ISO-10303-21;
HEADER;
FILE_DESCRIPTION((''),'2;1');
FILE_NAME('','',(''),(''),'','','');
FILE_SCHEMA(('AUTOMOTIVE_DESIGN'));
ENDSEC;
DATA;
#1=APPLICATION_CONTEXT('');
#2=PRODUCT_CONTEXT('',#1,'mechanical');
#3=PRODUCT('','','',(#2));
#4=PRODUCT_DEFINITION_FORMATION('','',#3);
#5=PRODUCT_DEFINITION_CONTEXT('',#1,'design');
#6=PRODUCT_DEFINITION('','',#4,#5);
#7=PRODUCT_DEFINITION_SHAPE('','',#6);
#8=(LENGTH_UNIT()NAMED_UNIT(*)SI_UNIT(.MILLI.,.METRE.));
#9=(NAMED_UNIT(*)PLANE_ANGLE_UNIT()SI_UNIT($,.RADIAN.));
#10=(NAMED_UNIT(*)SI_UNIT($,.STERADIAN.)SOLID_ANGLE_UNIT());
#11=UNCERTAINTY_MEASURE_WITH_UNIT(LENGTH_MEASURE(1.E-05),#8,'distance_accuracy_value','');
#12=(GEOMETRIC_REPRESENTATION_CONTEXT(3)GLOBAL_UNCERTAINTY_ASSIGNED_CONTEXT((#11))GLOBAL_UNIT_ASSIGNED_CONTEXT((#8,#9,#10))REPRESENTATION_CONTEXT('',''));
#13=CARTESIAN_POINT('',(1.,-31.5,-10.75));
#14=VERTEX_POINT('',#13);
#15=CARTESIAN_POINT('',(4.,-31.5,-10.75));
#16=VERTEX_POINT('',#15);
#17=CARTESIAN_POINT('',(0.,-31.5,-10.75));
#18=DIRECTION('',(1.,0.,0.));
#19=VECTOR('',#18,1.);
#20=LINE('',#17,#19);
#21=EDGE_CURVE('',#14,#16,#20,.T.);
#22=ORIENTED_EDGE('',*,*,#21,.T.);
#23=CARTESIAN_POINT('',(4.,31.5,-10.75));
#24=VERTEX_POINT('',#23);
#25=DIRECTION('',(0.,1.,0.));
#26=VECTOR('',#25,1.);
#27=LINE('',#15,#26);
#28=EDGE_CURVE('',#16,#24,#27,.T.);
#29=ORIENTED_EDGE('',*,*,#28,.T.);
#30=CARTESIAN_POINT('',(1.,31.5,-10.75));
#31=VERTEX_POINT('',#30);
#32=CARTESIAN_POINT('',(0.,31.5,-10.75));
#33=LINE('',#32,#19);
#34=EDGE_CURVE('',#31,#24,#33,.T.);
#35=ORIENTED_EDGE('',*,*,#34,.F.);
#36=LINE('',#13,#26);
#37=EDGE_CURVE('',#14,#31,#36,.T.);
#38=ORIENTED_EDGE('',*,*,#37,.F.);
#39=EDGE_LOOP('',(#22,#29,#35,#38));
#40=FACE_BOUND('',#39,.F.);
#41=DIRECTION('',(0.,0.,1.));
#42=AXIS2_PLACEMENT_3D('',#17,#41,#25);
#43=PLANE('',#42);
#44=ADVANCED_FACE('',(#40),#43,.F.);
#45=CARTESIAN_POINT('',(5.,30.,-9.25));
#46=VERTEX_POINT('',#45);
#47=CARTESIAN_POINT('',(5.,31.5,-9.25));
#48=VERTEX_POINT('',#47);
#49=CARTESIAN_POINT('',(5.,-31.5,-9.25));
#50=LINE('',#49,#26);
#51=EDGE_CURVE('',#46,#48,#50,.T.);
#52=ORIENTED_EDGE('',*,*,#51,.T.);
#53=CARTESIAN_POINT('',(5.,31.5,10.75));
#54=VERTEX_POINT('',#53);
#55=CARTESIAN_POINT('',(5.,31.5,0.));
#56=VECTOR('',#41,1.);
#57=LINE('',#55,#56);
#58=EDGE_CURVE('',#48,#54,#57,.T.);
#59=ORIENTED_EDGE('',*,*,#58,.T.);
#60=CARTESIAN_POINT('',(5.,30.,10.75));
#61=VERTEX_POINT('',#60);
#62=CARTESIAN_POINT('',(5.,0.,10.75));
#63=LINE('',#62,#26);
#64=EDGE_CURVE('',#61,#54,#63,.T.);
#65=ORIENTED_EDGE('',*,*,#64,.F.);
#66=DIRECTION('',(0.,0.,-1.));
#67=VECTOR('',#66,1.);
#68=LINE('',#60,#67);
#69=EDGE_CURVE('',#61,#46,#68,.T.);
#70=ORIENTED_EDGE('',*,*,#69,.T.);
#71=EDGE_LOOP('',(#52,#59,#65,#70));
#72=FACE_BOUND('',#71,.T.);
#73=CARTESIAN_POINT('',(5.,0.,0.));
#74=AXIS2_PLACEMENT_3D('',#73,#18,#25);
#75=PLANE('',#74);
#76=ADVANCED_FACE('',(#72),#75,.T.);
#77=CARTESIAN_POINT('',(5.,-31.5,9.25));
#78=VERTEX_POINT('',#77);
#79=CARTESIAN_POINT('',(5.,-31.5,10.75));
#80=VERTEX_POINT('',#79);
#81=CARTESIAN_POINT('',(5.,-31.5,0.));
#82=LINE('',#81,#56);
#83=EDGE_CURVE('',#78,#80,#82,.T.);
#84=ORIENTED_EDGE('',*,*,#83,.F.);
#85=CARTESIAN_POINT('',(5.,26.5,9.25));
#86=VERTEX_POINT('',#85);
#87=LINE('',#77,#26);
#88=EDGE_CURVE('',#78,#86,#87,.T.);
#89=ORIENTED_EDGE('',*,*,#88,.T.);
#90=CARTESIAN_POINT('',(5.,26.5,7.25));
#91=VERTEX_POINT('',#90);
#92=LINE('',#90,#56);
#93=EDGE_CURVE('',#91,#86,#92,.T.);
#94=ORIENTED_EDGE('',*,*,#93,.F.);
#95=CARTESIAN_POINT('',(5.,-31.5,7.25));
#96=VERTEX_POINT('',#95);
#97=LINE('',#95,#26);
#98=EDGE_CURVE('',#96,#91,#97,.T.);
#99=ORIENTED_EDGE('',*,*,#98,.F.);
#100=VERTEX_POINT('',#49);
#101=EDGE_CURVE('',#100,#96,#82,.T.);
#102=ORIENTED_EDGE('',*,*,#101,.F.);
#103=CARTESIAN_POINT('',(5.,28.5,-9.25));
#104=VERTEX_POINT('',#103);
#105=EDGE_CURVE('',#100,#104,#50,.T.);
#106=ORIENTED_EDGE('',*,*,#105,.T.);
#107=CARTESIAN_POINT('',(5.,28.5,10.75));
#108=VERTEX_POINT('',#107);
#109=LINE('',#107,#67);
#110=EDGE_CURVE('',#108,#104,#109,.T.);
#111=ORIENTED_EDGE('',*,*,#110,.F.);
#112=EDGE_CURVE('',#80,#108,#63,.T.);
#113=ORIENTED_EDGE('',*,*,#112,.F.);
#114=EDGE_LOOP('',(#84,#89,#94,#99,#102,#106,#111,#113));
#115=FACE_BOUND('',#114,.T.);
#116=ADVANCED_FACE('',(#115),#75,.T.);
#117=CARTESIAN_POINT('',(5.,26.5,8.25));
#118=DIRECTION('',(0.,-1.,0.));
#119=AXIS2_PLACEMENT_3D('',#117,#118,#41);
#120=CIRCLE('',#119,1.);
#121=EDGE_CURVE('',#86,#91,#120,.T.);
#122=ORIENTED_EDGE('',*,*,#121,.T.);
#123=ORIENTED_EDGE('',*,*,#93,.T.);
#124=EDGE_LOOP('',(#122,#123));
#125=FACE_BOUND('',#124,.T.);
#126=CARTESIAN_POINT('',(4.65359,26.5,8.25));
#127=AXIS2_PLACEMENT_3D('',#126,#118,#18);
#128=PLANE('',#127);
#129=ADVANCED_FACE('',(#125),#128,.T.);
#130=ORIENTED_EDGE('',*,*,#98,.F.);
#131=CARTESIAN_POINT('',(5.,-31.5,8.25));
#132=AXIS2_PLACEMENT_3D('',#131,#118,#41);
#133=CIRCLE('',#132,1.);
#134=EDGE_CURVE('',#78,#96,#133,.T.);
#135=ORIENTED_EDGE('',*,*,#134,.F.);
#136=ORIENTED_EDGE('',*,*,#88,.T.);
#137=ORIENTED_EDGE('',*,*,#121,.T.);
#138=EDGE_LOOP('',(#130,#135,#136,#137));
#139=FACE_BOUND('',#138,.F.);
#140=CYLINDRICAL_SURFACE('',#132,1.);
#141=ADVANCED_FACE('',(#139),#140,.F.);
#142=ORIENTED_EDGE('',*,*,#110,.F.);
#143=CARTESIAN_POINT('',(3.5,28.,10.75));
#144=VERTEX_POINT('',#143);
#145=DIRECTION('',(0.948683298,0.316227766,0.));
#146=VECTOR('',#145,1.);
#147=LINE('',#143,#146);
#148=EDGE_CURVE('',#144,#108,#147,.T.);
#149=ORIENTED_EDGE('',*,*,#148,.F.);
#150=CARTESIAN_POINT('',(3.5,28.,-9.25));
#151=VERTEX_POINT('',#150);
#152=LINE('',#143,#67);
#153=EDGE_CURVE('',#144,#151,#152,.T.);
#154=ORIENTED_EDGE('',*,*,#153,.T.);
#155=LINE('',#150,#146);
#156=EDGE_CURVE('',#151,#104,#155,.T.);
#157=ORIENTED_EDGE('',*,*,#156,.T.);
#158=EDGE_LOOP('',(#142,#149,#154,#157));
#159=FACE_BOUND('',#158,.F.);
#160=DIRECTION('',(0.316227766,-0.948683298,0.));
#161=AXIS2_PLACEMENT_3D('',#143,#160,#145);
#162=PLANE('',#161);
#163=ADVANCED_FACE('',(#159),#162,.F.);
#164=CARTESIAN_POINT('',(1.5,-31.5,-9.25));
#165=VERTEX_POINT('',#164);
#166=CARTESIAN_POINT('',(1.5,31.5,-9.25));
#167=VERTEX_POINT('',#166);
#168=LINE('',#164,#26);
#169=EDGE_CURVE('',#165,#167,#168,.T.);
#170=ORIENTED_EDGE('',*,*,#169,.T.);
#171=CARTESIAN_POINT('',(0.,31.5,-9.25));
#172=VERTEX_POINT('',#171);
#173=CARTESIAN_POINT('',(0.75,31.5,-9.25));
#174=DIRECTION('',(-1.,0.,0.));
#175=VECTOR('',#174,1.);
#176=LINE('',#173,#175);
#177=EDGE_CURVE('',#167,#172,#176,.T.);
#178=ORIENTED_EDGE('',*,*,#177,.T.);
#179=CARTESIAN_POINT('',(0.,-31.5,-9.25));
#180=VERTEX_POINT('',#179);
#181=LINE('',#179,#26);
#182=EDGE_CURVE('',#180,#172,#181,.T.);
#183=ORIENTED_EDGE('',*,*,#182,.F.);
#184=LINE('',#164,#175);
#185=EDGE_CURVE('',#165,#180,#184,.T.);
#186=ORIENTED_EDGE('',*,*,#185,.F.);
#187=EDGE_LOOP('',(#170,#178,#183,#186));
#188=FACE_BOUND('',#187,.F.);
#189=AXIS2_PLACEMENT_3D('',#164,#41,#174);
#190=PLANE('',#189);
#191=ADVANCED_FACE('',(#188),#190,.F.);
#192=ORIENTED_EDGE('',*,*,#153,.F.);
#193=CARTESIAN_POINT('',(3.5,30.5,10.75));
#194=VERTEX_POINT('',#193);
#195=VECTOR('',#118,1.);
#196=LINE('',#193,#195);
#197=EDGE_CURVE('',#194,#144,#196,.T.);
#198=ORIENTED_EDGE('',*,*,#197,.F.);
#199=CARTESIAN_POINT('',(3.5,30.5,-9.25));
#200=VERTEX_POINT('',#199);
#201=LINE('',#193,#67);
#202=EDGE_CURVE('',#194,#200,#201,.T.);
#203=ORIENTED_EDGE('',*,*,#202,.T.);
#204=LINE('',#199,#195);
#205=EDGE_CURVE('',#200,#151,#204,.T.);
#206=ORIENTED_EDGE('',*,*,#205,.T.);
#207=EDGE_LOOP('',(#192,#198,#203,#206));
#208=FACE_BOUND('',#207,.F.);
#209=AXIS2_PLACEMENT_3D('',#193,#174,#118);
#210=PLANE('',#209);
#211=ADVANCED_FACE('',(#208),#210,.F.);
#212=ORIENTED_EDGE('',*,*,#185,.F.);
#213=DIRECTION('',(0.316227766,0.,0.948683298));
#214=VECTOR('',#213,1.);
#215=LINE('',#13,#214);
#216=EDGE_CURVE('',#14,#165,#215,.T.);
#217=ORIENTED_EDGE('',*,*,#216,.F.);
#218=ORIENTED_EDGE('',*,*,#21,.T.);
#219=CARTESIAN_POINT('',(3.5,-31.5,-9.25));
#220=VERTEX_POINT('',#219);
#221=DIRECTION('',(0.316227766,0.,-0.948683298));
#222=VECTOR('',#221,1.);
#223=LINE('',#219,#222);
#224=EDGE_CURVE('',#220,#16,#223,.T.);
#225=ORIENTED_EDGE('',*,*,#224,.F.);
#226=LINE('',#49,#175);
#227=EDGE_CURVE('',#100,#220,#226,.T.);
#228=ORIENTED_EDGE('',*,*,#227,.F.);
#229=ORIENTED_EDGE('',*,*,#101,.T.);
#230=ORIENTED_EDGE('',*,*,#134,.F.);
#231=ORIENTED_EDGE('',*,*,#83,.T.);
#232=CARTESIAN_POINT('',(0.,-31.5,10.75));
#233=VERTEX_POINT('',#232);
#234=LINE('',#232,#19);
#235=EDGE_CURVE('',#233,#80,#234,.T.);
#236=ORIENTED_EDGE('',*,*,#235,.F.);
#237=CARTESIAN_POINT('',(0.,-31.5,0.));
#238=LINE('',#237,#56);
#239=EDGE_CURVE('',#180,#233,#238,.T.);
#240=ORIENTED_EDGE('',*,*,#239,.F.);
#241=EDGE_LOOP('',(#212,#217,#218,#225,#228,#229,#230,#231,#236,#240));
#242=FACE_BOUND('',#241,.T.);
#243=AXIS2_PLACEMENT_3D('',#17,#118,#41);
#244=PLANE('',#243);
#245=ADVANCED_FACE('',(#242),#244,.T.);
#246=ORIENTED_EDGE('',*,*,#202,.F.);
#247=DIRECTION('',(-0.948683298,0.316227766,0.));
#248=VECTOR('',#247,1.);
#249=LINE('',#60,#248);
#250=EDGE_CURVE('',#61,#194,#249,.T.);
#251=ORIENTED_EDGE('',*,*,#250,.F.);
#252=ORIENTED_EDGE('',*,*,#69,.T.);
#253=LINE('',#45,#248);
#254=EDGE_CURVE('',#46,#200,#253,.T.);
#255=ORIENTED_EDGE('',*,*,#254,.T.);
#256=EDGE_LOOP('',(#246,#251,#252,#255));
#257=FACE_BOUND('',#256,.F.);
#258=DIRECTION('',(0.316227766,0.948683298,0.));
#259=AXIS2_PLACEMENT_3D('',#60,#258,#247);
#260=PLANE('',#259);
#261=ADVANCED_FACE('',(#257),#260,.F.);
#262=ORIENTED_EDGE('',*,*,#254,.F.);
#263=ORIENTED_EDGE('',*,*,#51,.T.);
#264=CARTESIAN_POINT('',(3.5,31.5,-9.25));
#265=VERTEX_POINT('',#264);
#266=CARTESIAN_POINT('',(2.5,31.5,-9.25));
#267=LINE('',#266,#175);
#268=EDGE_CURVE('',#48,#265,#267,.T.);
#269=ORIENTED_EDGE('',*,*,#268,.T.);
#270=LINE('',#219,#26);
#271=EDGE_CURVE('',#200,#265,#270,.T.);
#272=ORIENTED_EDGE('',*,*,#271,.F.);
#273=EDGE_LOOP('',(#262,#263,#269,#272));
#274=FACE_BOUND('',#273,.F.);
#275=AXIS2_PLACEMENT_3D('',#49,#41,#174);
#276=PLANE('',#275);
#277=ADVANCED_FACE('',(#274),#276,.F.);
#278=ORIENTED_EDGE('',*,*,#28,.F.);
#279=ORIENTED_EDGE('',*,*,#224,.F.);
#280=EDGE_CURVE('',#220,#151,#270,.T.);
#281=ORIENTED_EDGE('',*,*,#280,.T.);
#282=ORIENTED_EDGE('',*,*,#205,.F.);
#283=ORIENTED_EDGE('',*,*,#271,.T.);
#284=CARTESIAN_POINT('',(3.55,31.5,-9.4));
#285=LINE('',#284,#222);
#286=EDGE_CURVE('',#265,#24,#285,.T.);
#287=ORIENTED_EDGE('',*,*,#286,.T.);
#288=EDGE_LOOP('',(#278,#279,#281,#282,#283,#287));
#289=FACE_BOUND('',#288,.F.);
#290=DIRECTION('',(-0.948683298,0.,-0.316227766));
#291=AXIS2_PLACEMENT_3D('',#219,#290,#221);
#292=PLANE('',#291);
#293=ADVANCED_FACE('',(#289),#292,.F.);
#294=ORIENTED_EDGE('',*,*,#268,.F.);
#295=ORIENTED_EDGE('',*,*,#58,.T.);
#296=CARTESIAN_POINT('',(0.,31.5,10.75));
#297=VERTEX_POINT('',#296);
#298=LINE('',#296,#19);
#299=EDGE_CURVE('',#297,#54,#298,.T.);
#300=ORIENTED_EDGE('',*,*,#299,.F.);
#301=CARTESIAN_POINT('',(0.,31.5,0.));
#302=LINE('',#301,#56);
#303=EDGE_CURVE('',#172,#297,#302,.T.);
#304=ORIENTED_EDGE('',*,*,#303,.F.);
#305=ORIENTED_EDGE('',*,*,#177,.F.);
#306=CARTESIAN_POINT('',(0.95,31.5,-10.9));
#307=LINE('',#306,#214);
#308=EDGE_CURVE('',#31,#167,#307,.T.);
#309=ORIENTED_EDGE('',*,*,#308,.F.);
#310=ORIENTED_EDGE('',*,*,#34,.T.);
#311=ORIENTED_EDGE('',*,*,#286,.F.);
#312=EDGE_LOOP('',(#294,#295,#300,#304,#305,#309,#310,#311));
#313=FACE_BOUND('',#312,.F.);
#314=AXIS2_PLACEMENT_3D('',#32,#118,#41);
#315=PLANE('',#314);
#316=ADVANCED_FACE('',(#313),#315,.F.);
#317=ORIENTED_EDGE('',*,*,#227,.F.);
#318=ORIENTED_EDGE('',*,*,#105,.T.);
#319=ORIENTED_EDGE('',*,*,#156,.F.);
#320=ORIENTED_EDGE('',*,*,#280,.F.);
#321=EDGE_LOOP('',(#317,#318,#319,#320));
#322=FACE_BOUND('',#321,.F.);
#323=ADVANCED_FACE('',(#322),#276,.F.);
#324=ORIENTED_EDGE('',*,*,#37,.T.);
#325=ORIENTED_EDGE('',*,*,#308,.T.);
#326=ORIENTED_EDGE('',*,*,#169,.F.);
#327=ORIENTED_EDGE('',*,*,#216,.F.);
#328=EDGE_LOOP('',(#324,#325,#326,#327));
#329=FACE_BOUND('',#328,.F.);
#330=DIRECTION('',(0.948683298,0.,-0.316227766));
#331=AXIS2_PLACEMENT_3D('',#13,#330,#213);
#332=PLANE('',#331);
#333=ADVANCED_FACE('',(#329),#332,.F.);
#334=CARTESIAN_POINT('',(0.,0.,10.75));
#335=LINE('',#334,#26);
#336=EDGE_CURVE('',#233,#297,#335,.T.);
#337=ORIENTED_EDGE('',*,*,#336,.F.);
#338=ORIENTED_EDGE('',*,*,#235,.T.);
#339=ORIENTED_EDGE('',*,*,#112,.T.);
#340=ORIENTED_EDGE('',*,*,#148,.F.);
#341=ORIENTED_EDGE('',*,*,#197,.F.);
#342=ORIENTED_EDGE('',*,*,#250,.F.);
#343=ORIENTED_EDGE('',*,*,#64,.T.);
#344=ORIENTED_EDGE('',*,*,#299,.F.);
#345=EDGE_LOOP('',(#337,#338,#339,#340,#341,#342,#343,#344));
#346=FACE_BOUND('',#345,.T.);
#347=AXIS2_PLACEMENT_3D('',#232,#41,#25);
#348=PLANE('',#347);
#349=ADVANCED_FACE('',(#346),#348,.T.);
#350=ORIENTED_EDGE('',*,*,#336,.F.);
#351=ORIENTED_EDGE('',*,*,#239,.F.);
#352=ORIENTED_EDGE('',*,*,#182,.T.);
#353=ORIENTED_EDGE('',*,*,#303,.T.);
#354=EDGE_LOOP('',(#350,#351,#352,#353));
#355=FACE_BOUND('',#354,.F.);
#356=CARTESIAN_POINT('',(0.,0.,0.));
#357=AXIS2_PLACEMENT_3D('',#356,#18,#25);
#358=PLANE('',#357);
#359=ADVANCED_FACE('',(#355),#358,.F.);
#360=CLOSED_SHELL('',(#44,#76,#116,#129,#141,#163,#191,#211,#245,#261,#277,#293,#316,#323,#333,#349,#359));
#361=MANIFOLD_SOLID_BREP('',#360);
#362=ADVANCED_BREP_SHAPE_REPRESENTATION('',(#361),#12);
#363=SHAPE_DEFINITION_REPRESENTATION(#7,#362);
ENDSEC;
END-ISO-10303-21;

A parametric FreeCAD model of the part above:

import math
import FreeCAD as App
import Part
import Sketcher

doc = App.newDocument("Part")
params = doc.addObject("Spreadsheet::Sheet", "Params")
for row, (alias, value) in enumerate([
    ("sketch1_width", "63 mm"),
    ("sketch1_height", "21.5 mm"),
    ("pad1_length", "5 mm"),
    ("sketch2_radius", "1 mm"),
    ("pocket1_length", "58 mm"),
    ("sketch3_width", "1 mm"),
    ("sketch3_width2", "1.5 mm"),
    ("sketch4_height", "1.5 mm"),
    ("sketch4_height2", "2.5 mm"),
    ("pocket3_length", "20 mm"),
], start=1):
    params.set(f"A{row}", alias)
    params.set(f"B{row}", "=" + value)
    params.setAlias(f"B{row}", alias)

body = doc.addObject("PartDesign::Body", "Body")

sketch1 = body.newObject("Sketcher::SketchObject", "Sketch")
sketch1.AttachmentSupport = (doc.getObject("YZ_Plane"), [""])
sketch1.MapMode = "FlatFace"
sketch1.addGeometry([
    Part.LineSegment(App.Vector(-32, 11, 0), App.Vector(-32, -11, 0)),
    Part.LineSegment(App.Vector(-32, -11, 0), App.Vector(32, -11, 0)),
    Part.LineSegment(App.Vector(32, -11, 0), App.Vector(32, 11, 0)),
    Part.LineSegment(App.Vector(32, 11, 0), App.Vector(-32, 11, 0)),
], False)
sketch1.addConstraint([
    Sketcher.Constraint("Coincident", 0, 2, 1, 1),
    Sketcher.Constraint("Coincident", 1, 2, 2, 1),
    Sketcher.Constraint("Coincident", 2, 2, 3, 1),
    Sketcher.Constraint("Coincident", 3, 2, 0, 1),
    Sketcher.Constraint("Vertical", 0),
    Sketcher.Constraint("Horizontal", 1),
    Sketcher.Constraint("Vertical", 2),
    Sketcher.Constraint("Horizontal", 3),
    Sketcher.Constraint("Symmetric", 0, 2, 2, 2, -1, 1),
    Sketcher.Constraint("DistanceX", 1, 1, 1, 2, 63.0),
    Sketcher.Constraint("DistanceY", 0, 2, 0, 1, 21.5),
])
sketch1.setExpression("Constraints[9]", "Params.sketch1_width")
sketch1.setExpression("Constraints[10]", "Params.sketch1_height")
pad1 = body.newObject("PartDesign::Pad", "Pad")
pad1.Profile = sketch1
pad1.setExpression("Length", "Params.pad1_length")

sketch2 = body.newObject("Sketcher::SketchObject", "Sketch001")
sketch2.AttachmentSupport = (doc.getObject("XZ_Plane"), [""])
sketch2.MapMode = "FlatFace"
sketch2.AttachmentOffset = App.Placement(App.Vector(0, 0, 31.5), App.Rotation())
sketch2.addGeometry([
    Part.LineSegment(App.Vector(5, 7.2, 0), App.Vector(5, 9.2, 0)),
    Part.ArcOfCircle(Part.Circle(App.Vector(5, 8.2, 0), App.Vector(0, 0, 1), 1), math.radians(90), math.radians(270)),
], False)
sketch2.addConstraint([
    Sketcher.Constraint("Coincident", 0, 1, 1, 2),
    Sketcher.Constraint("Coincident", 1, 1, 0, 2),
    Sketcher.Constraint("Vertical", 0),
    Sketcher.Constraint("Vertical", 1, 3, 0, 1),
    Sketcher.Constraint("Radius", 1, 1.0),
    Sketcher.Constraint("DistanceX", -1, 1, 1, 3, 5.0),
    Sketcher.Constraint("DistanceY", -1, 1, 1, 3, 8.25),
])
sketch2.setExpression("Constraints[4]", "Params.sketch2_radius")
pocket1 = body.newObject("PartDesign::Pocket", "Pocket")
pocket1.Profile = sketch2
pocket1.setExpression("Length", "Params.pocket1_length")

sketch3 = body.newObject("Sketcher::SketchObject", "Sketch002")
sketch3.AttachmentSupport = (doc.getObject("XZ_Plane"), [""])
sketch3.MapMode = "FlatFace"
sketch3.AttachmentOffset = App.Placement(App.Vector(0, 0, 31.5), App.Rotation())
sketch3.addGeometry([
    Part.LineSegment(App.Vector(1.5, -9.2, 0), App.Vector(0, -9.2, 0)),
    Part.LineSegment(App.Vector(0, -9.2, 0), App.Vector(0, -10.8, 0)),
    Part.LineSegment(App.Vector(0, -10.8, 0), App.Vector(1, -10.8, 0)),
    Part.LineSegment(App.Vector(1, -10.8, 0), App.Vector(1.5, -9.2, 0)),
    Part.LineSegment(App.Vector(3.5, -9.2, 0), App.Vector(4, -10.8, 0)),
    Part.LineSegment(App.Vector(4, -10.8, 0), App.Vector(5, -10.8, 0)),
    Part.LineSegment(App.Vector(5, -10.8, 0), App.Vector(5, -9.2, 0)),
    Part.LineSegment(App.Vector(5, -9.2, 0), App.Vector(3.5, -9.2, 0)),
], False)
sketch3.addConstraint([
    Sketcher.Constraint("Coincident", 0, 2, 1, 1),
    Sketcher.Constraint("Coincident", 1, 2, 2, 1),
    Sketcher.Constraint("Coincident", 2, 2, 3, 1),
    Sketcher.Constraint("Coincident", 3, 2, 0, 1),
    Sketcher.Constraint("Coincident", 4, 2, 5, 1),
    Sketcher.Constraint("Coincident", 5, 2, 6, 1),
    Sketcher.Constraint("Coincident", 6, 2, 7, 1),
    Sketcher.Constraint("Coincident", 7, 2, 4, 1),
    Sketcher.Constraint("Horizontal", 0),
    Sketcher.Constraint("Vertical", 1),
    Sketcher.Constraint("Horizontal", 2),
    Sketcher.Constraint("Horizontal", 5),
    Sketcher.Constraint("Vertical", 6),
    Sketcher.Constraint("Horizontal", 7),
    Sketcher.Constraint("PointOnObject", 0, 2, -2),
    Sketcher.Constraint("Horizontal", 2, 2, 4, 2),
    Sketcher.Constraint("Horizontal", 3, 2, 6, 2),
    Sketcher.Constraint("Equal", 2, 5),
    Sketcher.Constraint("Equal", 0, 7),
    Sketcher.Constraint("Equal", 7, 1),
    Sketcher.Constraint("DistanceX", 2, 1, 2, 2, 1.0),
    Sketcher.Constraint("DistanceX", 0, 2, 0, 1, 1.5),
    Sketcher.Constraint("DistanceX", -1, 1, 4, 2, 4.0),
    Sketcher.Constraint("DistanceY", 0, 2, -1, 1, 9.25),
])
sketch3.setExpression("Constraints[20]", "Params.sketch3_width")
sketch3.setExpression("Constraints[21]", "Params.sketch3_width2")
pocket2 = body.newObject("PartDesign::Pocket", "Pocket001")
pocket2.Profile = sketch3
pocket2.Type = "ThroughAll"

sketch4 = body.newObject("Sketcher::SketchObject", "Sketch003")
sketch4.AttachmentSupport = (doc.getObject("XY_Plane"), [""])
sketch4.MapMode = "FlatFace"
sketch4.AttachmentOffset = App.Placement(App.Vector(0, 0, 10.75), App.Rotation())
sketch4.addGeometry([
    Part.LineSegment(App.Vector(5, 28.5, 0), App.Vector(5, 30, 0)),
    Part.LineSegment(App.Vector(5, 30, 0), App.Vector(3.5, 30.5, 0)),
    Part.LineSegment(App.Vector(3.5, 30.5, 0), App.Vector(3.5, 28, 0)),
    Part.LineSegment(App.Vector(3.5, 28, 0), App.Vector(5, 28.5, 0)),
], False)
sketch4.addConstraint([
    Sketcher.Constraint("Coincident", 0, 2, 1, 1),
    Sketcher.Constraint("Coincident", 1, 2, 2, 1),
    Sketcher.Constraint("Coincident", 2, 2, 3, 1),
    Sketcher.Constraint("Coincident", 3, 2, 0, 1),
    Sketcher.Constraint("Vertical", 0),
    Sketcher.Constraint("Vertical", 2),
    Sketcher.Constraint("Equal", 1, 3),
    Sketcher.Constraint("DistanceY", 0, 1, 0, 2, 1.5),
    Sketcher.Constraint("DistanceY", 2, 2, 2, 1, 2.5),
    Sketcher.Constraint("DistanceX", -1, 1, 0, 2, 5.0),
    Sketcher.Constraint("DistanceY", -1, 1, 0, 2, 30.0),
    Sketcher.Constraint("DistanceX", -1, 1, 1, 2, 3.5),
])
sketch4.setExpression("Constraints[7]", "Params.sketch4_height")
sketch4.setExpression("Constraints[8]", "Params.sketch4_height2")
pocket3 = body.newObject("PartDesign::Pocket", "Pocket002")
pocket3.Profile = sketch4
pocket3.setExpression("Length", "Params.pocket3_length")

doc.recompute()
